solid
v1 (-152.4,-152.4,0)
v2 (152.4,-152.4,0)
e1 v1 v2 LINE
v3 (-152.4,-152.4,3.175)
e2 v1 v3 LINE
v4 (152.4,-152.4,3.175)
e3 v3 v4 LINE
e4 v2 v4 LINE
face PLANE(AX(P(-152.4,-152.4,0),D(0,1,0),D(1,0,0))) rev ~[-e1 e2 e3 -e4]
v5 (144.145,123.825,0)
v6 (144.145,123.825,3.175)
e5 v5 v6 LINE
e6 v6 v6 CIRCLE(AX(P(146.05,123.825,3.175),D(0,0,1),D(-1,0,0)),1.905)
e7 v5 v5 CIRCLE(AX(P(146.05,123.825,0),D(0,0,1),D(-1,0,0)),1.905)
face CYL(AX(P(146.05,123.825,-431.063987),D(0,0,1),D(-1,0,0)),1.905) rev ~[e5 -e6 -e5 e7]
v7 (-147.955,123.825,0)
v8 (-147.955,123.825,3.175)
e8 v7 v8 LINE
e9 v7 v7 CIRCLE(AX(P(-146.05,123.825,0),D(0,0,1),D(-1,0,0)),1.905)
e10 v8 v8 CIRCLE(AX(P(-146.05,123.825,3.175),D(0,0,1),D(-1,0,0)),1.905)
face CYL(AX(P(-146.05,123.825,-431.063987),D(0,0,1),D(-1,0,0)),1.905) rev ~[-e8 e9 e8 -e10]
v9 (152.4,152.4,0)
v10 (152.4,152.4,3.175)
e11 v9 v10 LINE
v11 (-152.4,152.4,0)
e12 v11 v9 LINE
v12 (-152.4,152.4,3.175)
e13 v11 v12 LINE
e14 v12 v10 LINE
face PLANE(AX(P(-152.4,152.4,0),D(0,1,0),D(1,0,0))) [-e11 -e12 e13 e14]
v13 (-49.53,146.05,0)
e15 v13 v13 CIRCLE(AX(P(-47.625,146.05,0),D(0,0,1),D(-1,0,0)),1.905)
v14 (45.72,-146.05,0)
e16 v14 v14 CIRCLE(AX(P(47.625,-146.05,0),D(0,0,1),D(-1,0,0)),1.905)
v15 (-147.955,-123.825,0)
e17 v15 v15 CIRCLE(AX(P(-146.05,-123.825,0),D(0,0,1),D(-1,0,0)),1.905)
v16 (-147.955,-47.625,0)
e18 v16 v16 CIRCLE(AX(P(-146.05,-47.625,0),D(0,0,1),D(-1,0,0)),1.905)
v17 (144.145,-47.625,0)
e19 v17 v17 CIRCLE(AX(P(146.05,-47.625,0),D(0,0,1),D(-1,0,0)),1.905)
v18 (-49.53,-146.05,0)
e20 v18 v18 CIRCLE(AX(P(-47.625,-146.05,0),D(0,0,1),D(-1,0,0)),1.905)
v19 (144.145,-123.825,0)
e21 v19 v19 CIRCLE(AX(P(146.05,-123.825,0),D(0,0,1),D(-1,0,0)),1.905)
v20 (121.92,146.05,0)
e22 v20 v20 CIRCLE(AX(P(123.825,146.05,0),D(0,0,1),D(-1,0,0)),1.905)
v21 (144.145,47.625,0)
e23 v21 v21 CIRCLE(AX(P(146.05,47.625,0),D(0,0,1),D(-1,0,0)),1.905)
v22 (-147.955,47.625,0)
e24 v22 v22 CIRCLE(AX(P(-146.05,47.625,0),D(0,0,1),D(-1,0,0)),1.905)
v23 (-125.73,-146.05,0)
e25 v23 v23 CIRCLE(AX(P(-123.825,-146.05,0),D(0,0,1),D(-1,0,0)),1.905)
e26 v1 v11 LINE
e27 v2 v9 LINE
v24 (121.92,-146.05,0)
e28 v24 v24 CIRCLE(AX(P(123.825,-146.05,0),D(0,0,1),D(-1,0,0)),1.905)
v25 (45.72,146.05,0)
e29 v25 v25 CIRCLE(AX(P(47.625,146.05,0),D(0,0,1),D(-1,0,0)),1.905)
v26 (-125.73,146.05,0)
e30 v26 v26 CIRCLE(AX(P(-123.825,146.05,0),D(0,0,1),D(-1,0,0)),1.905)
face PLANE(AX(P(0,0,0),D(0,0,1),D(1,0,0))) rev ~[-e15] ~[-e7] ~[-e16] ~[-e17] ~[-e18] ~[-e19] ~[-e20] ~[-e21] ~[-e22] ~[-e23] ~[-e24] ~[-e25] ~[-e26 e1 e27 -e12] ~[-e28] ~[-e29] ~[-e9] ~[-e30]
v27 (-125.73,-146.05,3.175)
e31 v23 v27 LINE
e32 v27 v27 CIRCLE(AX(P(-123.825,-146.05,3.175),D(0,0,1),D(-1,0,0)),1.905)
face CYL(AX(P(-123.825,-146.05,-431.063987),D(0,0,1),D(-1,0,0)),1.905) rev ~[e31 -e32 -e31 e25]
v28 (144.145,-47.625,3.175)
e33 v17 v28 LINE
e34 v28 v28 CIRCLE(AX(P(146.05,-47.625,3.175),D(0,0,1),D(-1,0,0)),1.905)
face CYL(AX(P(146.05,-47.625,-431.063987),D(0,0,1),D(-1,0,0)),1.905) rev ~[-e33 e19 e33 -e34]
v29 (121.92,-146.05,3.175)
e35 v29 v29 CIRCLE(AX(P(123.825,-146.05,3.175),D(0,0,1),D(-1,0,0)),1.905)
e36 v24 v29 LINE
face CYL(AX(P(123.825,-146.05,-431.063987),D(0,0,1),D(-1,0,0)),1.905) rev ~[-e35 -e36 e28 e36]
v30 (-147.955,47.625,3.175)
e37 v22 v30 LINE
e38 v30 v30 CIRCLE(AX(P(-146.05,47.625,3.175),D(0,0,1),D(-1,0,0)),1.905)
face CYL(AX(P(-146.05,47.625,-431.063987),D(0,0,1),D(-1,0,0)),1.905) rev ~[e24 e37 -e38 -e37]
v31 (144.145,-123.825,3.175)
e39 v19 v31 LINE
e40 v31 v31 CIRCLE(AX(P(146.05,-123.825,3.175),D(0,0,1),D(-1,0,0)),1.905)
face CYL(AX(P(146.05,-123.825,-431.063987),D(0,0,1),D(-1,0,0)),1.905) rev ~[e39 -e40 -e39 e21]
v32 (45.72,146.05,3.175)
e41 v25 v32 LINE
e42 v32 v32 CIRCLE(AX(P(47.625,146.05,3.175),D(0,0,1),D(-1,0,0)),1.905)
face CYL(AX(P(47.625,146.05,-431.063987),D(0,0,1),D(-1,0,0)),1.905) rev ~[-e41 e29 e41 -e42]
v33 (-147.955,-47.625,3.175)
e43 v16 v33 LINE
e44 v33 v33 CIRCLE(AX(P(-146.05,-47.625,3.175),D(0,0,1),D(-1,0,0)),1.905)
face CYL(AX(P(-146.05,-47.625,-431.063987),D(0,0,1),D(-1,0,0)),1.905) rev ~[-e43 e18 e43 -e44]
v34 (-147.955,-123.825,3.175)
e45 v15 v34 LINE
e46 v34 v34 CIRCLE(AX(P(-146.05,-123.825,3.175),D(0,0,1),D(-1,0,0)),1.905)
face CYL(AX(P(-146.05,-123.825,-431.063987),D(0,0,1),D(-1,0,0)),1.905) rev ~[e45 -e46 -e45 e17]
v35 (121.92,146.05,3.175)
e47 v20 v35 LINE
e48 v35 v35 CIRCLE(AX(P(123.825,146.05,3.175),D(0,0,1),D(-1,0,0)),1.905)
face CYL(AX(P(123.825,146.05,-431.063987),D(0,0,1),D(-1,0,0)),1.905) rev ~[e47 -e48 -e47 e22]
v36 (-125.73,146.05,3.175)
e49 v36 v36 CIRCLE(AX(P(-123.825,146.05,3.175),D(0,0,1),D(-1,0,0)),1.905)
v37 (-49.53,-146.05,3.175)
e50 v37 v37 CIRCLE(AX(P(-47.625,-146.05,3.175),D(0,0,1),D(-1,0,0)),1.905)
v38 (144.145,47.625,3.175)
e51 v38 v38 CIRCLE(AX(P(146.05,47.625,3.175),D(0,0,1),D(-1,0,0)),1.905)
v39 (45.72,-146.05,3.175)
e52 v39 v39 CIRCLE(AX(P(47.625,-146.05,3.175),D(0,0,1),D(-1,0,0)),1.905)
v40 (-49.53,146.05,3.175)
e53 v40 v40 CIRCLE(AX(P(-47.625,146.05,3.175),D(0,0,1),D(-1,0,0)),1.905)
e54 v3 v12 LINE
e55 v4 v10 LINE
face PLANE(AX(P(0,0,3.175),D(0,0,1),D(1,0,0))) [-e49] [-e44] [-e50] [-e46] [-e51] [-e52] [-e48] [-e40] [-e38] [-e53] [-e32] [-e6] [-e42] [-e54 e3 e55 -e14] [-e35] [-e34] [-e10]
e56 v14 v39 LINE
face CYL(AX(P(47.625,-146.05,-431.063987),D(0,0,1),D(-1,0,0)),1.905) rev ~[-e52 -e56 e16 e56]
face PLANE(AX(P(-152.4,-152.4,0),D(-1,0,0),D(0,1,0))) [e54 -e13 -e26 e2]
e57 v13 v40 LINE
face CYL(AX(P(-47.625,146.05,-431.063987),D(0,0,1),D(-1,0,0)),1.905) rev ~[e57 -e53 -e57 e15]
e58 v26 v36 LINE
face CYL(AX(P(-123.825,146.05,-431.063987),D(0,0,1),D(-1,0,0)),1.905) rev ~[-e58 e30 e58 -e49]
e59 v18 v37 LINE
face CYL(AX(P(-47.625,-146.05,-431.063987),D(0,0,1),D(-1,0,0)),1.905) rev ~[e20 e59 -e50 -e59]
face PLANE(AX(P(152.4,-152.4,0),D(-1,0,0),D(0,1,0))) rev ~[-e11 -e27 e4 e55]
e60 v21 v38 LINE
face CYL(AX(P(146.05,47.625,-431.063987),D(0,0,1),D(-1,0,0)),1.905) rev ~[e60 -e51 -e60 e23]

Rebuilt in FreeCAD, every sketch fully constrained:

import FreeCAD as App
import Part
import Sketcher
from FreeCAD import Vector
Q = App.Units.Quantity

doc = App.newDocument("Part")
body = doc.addObject("PartDesign::Body", "Body")

# Sketch on XY plane
sketch1 = doc.addObject("Sketcher::SketchObject", "Sketch")
body.addObject(sketch1)
sketch1.AttachmentSupport = (doc.XY_Plane, [""])
sketch1.MapMode = "FlatFace"
sketch1.addGeometry([
    Part.LineSegment(Vector(-152.4, 152.4, 0), Vector(-152.4, -152.4, 0)),
    Part.LineSegment(Vector(-152.4, -152.4, 0), Vector(152.4, -152.4, 0)),
    Part.LineSegment(Vector(152.4, -152.4, 0), Vector(152.4, 152.4, 0)),
    Part.LineSegment(Vector(152.4, 152.4, 0), Vector(-152.4, 152.4, 0)),
], False)
sketch1.addConstraint([
    Sketcher.Constraint("Coincident", 0, 2, 1, 1),
    Sketcher.Constraint("Coincident", 1, 2, 2, 1),
    Sketcher.Constraint("Coincident", 2, 2, 3, 1),
    Sketcher.Constraint("Coincident", 3, 2, 0, 1),
    Sketcher.Constraint("Vertical", 0),
    Sketcher.Constraint("Horizontal", 1),
    Sketcher.Constraint("Vertical", 2),
    Sketcher.Constraint("Horizontal", 3),
    Sketcher.Constraint("Symmetric", 0, 2, 2, 2, -1, 1),
    Sketcher.Constraint("Equal", 3, 0),
    Sketcher.Constraint("DistanceX", 1, 1, 1, 2, Q("12 in")),
])
pad1 = doc.addObject("PartDesign::Pad", "Pad")
body.addObject(pad1)
pad1.Profile = sketch1
pad1.Length = Q("0.125 in")

# Sketch on XY plane
sketch2 = doc.addObject("Sketcher::SketchObject", "Sketch001")
body.addObject(sketch2)
sketch2.AttachmentSupport = (doc.XY_Plane, [""])
sketch2.MapMode = "FlatFace"
sketch2.addGeometry([
    Part.Circle(Vector(-146.05, -123.825, 0), Vector(0, 0, 1), 1.905),  # 0
    Part.Circle(Vector(-123.825, -146.05, 0), Vector(0, 0, 1), 1.905),  # 1
    Part.Circle(Vector(123.825, -146.05, 0), Vector(0, 0, 1), 1.905),  # 2
    Part.Circle(Vector(146.05, 123.825, 0), Vector(0, 0, 1), 1.905),  # 3
    Part.Circle(Vector(123.825, 146.05, 0), Vector(0, 0, 1), 1.905),  # 4
    Part.Circle(Vector(-146.05, 123.825, 0), Vector(0, 0, 1), 1.905),  # 5
    Part.Circle(Vector(-123.825, 146.05, 0), Vector(0, 0, 1), 1.905),  # 6
    Part.Circle(Vector(-146.05, -47.625, 0), Vector(0, 0, 1), 1.905),  # 7
    Part.Circle(Vector(-146.05, 47.625, 0), Vector(0, 0, 1), 1.905),  # 8
    Part.Circle(Vector(-47.625, 146.05, 0), Vector(0, 0, 1), 1.905),  # 9
    Part.Circle(Vector(47.625, 146.05, 0), Vector(0, 0, 1), 1.905),  # 10
    Part.Circle(Vector(146.05, 47.625, 0), Vector(0, 0, 1), 1.905),  # 11
    Part.Circle(Vector(146.05, -47.625, 0), Vector(0, 0, 1), 1.905),  # 12
    Part.Circle(Vector(47.625, -146.05, 0), Vector(0, 0, 1), 1.905),  # 13
    Part.Circle(Vector(-47.625, -146.05, 0), Vector(0, 0, 1), 1.905),  # 14
    Part.Circle(Vector(146.05, -123.825, 0), Vector(0, 0, 1), 1.905),  # 15
], False)
sketch2.addConstraint([
    Sketcher.Constraint("Equal", 0, 1),
    Sketcher.Constraint("Equal", 1, 2),
    Sketcher.Constraint("Equal", 2, 3),
    Sketcher.Constraint("Equal", 3, 4),
    Sketcher.Constraint("Equal", 4, 5),
    Sketcher.Constraint("Equal", 5, 6),
    Sketcher.Constraint("Equal", 6, 7),
    Sketcher.Constraint("Equal", 7, 8),
    Sketcher.Constraint("Equal", 8, 9),
    Sketcher.Constraint("Equal", 9, 10),
    Sketcher.Constraint("Equal", 10, 11),
    Sketcher.Constraint("Equal", 11, 12),
    Sketcher.Constraint("Equal", 12, 13),
    Sketcher.Constraint("Equal", 13, 14),
    Sketcher.Constraint("Equal", 14, 15),
    Sketcher.Constraint("Symmetric", 0, 3, 3, 3, -1, 1),
    Sketcher.Constraint("Symmetric", 1, 3, 4, 3, -1, 1),
    Sketcher.Constraint("Symmetric", 2, 3, 6, 3, -1, 1),
    Sketcher.Constraint("Symmetric", 7, 3, 11, 3, -1, 1),
    Sketcher.Constraint("Symmetric", 8, 3, 12, 3, -1, 1),
    Sketcher.Constraint("Symmetric", 9, 3, 13, 3, -1, 1),
    Sketcher.Constraint("Symmetric", 10, 3, 14, 3, -1, 1),
    Sketcher.Constraint("Symmetric", 5, 3, 15, 3, -1, 1),
    Sketcher.Constraint("Symmetric", 1, 3, 2, 3, -2),
    Sketcher.Constraint("Symmetric", 3, 3, 5, 3, -2),
    Sketcher.Constraint("Symmetric", 9, 3, 10, 3, -2),
    Sketcher.Constraint("Symmetric", 8, 3, 11, 3, -2),
    Sketcher.Constraint("Horizontal", 6, 3, 9, 3),
    Sketcher.Constraint("Vertical", 5, 3, 7, 3),
    Sketcher.Constraint("Diameter", 0, Q("0.15 in")),
    Sketcher.Constraint("DistanceY", 0, 3, 7, 3, Q("3 in")),
    Sketcher.Constraint("DistanceX", 6, 3, 9, 3, Q("3 in")),
    Sketcher.Constraint("DistanceX", 0, 3, 3, 3, Q("11.5 in")),
    Sketcher.Constraint("DistanceY", 2, 3, 4, 3, Q("11.5 in")),
    Sketcher.Constraint("DistanceX", 1, 3, 2, 3, Q("9.75 in")),
    Sketcher.Constraint("DistanceY", 0, 3, 3, 3, Q("9.75 in")),
])
doc.recompute()
hole = doc.addObject("PartDesign::Hole", "Hole")
body.addObject(hole)
hole.Profile = sketch2
hole.ThreadType = "None"
hole.Diameter = Q("0.15 in")
hole.DepthType = "ThroughAll"
hole.Reversed = True

doc.recompute()
